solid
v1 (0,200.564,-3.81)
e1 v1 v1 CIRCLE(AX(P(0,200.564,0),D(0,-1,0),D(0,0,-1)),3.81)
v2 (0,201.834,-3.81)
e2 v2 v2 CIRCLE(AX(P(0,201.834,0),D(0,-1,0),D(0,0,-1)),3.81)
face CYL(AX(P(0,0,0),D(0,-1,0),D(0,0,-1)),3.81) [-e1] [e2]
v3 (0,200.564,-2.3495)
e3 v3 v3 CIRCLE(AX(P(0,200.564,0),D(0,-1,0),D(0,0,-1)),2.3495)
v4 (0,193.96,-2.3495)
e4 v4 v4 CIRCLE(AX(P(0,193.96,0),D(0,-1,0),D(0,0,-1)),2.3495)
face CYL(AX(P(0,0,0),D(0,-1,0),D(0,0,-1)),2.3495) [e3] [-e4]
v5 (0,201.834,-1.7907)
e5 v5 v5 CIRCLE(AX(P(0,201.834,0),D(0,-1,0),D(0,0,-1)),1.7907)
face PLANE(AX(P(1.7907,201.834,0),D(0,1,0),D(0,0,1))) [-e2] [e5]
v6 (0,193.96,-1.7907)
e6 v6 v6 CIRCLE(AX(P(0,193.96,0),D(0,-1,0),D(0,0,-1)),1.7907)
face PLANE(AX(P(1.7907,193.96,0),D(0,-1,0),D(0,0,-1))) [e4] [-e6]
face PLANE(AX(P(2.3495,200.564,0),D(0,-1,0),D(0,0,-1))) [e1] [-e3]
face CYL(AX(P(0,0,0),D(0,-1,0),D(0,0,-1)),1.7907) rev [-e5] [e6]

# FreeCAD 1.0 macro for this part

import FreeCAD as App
import Part
import Sketcher

V = App.Vector
Q = App.Units.Quantity

doc = App.newDocument("Part")
body = doc.addObject("PartDesign::Body", "Body")

# Sketch on XY plane
sketch1 = doc.addObject("Sketcher::SketchObject", "Sketch")
body.addObject(sketch1)
sketch1.AttachmentSupport = (doc.XY_Plane, [""])
sketch1.MapMode = "FlatFace"
sketch1.addGeometry([
    Part.LineSegment(V(1.8, 194, 0), V(2.3, 194, 0)),  # 0
    Part.LineSegment(V(2.3, 194, 0), V(2.3, 200.6, 0)),  # 1
    Part.LineSegment(V(2.3, 200.6, 0), V(3.8, 200.6, 0)),  # 2
    Part.LineSegment(V(3.8, 200.6, 0), V(3.8, 201.8, 0)),  # 3
    Part.LineSegment(V(3.8, 201.8, 0), V(1.8, 201.8, 0)),  # 4
    Part.LineSegment(V(1.8, 201.8, 0), V(1.8, 194, 0)),  # 5
], False)
sketch1.addConstraint([
    Sketcher.Constraint("Coincident", 0, 2, 1, 1),
    Sketcher.Constraint("Coincident", 1, 2, 2, 1),
    Sketcher.Constraint("Coincident", 2, 2, 3, 1),
    Sketcher.Constraint("Coincident", 3, 2, 4, 1),
    Sketcher.Constraint("Coincident", 4, 2, 5, 1),
    Sketcher.Constraint("Coincident", 5, 2, 0, 1),
    Sketcher.Constraint("Horizontal", 0),
    Sketcher.Constraint("Vertical", 1),
    Sketcher.Constraint("Horizontal", 2),
    Sketcher.Constraint("Vertical", 3),
    Sketcher.Constraint("Horizontal", 4),
    Sketcher.Constraint("Vertical", 5),
    Sketcher.Constraint("DistanceY", 1, 1, 1, 2, Q("0.26 in")),
    Sketcher.Constraint("DistanceY", 3, 1, 3, 2, Q("0.05 in")),
    Sketcher.Constraint("DistanceX", 0, 1, 0, 2, Q("0.022 in")),
    Sketcher.Constraint("DistanceX", -1, 1, 2, 2, Q("0.15 in")),
    Sketcher.Constraint("DistanceX", 2, 1, 2, 2, Q("0.0575 in")),
    Sketcher.Constraint("DistanceY", -1, 1, 0, 2, Q("193.96 mm")),
])
revolution = doc.addObject("PartDesign::Revolution", "Revolution")
body.addObject(revolution)
revolution.Profile = sketch1
revolution.ReferenceAxis = (sketch1, ["V_Axis"])
revolution.Angle = 360

doc.recompute()
